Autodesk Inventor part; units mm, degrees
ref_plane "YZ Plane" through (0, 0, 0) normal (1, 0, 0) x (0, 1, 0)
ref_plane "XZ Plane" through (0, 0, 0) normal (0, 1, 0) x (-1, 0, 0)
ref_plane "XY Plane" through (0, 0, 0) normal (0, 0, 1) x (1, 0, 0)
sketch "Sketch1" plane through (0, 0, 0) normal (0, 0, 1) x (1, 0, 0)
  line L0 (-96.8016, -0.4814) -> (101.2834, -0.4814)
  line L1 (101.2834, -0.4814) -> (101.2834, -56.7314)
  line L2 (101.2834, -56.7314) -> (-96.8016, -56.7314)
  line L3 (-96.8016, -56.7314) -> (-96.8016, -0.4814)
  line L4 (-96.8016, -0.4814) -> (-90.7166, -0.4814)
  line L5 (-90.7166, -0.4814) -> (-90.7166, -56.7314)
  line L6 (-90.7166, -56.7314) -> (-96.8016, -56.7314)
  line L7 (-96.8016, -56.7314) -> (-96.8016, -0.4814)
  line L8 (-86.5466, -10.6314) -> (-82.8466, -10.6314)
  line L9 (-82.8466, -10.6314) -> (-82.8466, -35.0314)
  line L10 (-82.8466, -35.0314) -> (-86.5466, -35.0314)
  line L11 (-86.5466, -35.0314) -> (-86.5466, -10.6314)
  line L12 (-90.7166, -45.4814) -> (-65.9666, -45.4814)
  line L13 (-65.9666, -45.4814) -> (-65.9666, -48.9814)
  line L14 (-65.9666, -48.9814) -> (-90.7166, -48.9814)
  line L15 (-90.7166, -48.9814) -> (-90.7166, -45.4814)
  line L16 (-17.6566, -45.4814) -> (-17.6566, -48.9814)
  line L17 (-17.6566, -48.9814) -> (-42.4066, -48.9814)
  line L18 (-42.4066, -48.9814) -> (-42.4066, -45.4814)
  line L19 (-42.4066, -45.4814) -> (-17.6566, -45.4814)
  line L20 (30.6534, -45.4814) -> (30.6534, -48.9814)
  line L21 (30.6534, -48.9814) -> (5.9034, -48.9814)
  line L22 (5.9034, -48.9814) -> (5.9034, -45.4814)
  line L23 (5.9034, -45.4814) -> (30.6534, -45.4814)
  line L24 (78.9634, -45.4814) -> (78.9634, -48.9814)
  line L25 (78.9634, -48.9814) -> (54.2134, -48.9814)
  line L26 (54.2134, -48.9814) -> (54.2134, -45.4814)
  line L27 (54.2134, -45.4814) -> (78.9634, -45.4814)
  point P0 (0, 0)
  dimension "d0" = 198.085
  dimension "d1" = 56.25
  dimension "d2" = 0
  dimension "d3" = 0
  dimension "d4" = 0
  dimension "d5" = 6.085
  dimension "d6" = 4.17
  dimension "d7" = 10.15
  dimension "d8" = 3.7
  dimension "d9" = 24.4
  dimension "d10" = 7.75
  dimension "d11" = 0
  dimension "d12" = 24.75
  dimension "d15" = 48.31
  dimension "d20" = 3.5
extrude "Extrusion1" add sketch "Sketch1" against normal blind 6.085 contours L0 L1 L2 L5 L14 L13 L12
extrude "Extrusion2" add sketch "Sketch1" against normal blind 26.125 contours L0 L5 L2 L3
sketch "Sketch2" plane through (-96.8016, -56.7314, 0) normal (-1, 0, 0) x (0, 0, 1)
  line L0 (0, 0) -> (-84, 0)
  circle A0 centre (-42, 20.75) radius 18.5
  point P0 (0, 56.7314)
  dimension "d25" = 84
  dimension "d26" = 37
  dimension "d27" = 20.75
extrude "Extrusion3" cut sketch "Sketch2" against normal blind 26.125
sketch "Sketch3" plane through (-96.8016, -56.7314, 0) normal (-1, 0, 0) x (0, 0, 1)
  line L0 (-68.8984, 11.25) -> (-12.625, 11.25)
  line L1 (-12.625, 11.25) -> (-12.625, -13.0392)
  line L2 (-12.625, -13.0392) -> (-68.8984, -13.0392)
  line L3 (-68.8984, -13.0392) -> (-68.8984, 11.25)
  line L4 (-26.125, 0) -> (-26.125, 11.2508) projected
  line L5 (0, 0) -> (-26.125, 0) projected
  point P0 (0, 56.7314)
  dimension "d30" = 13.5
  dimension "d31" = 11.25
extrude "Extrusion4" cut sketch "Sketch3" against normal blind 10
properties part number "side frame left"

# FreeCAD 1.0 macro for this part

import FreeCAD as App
import Part
import Sketcher

V = App.Vector

doc = App.newDocument("Part")
body = doc.addObject("PartDesign::Body", "Body")

# Sketch on XY plane
sketch1 = body.newObject("Sketcher::SketchObject", "Sketch")
sketch1.AttachmentSupport = (doc.getObject("XY_Plane"), [""])
sketch1.MapMode = "FlatFace"
sketch1.addGeometry(Part.LineSegment(V(101.2834, -0.4814, 0), V(-90.7166, -0.4814, 0)), False)
sketch1.addGeometry(Part.LineSegment(V(-90.7166, -0.4814, 0), V(-90.7166, -45.4814, 0)), False)
sketch1.addGeometry(Part.LineSegment(V(-90.7166, -45.4814, 0), V(-65.9666, -45.4814, 0)), False)
sketch1.addGeometry(Part.LineSegment(V(-65.9666, -45.4814, 0), V(-65.9666, -48.9814, 0)), False)
sketch1.addGeometry(Part.LineSegment(V(-65.9666, -48.9814, 0), V(-90.7166, -48.9814, 0)), False)
sketch1.addGeometry(Part.LineSegment(V(-90.7166, -48.9814, 0), V(-90.7166, -56.7314, 0)), False)
sketch1.addGeometry(Part.LineSegment(V(-90.7166, -56.7314, 0), V(101.2834, -56.7314, 0)), False)
sketch1.addGeometry(Part.LineSegment(V(101.2834, -56.7314, 0), V(101.2834, -0.4814, 0)), False)
sketch1.addGeometry(Part.LineSegment(V(-42.4066, -45.4814, 0), V(-17.6566, -45.4814, 0)), False)
sketch1.addGeometry(Part.LineSegment(V(-17.6566, -45.4814, 0), V(-17.6566, -48.9814, 0)), False)
sketch1.addGeometry(Part.LineSegment(V(-17.6566, -48.9814, 0), V(-42.4066, -48.9814, 0)), False)
sketch1.addGeometry(Part.LineSegment(V(-42.4066, -48.9814, 0), V(-42.4066, -45.4814, 0)), False)
sketch1.addGeometry(Part.LineSegment(V(5.9034, -45.4814, 0), V(30.6534, -45.4814, 0)), False)
sketch1.addGeometry(Part.LineSegment(V(30.6534, -45.4814, 0), V(30.6534, -48.9814, 0)), False)
sketch1.addGeometry(Part.LineSegment(V(30.6534, -48.9814, 0), V(5.9034, -48.9814, 0)), False)
sketch1.addGeometry(Part.LineSegment(V(5.9034, -48.9814, 0), V(5.9034, -45.4814, 0)), False)
sketch1.addGeometry(Part.LineSegment(V(54.2134, -45.4814, 0), V(78.9634, -45.4814, 0)), False)
sketch1.addGeometry(Part.LineSegment(V(78.9634, -45.4814, 0), V(78.9634, -48.9814, 0)), False)
sketch1.addGeometry(Part.LineSegment(V(78.9634, -48.9814, 0), V(54.2134, -48.9814, 0)), False)
sketch1.addGeometry(Part.LineSegment(V(54.2134, -48.9814, 0), V(54.2134, -45.4814, 0)), False)
sketch1.addGeometry(Part.LineSegment(V(-86.5466, -35.0314, 0), V(-86.5466, -10.6314, 0)), False)
sketch1.addGeometry(Part.LineSegment(V(-86.5466, -10.6314, 0), V(-82.8466, -10.6314, 0)), False)
sketch1.addGeometry(Part.LineSegment(V(-82.8466, -10.6314, 0), V(-82.8466, -35.0314, 0)), False)
sketch1.addGeometry(Part.LineSegment(V(-82.8466, -35.0314, 0), V(-86.5466, -35.0314, 0)), False)
sketch1.addConstraint(Sketcher.Constraint("Coincident", 0, 2, 1, 1))
sketch1.addConstraint(Sketcher.Constraint("Coincident", 1, 2, 2, 1))
sketch1.addConstraint(Sketcher.Constraint("Coincident", 2, 2, 3, 1))
sketch1.addConstraint(Sketcher.Constraint("Coincident", 3, 2, 4, 1))
sketch1.addConstraint(Sketcher.Constraint("Coincident", 4, 2, 5, 1))
sketch1.addConstraint(Sketcher.Constraint("Coincident", 5, 2, 6, 1))
sketch1.addConstraint(Sketcher.Constraint("Coincident", 6, 2, 7, 1))
sketch1.addConstraint(Sketcher.Constraint("Coincident", 7, 2, 0, 1))
sketch1.addConstraint(Sketcher.Constraint("Coincident", 8, 2, 9, 1))
sketch1.addConstraint(Sketcher.Constraint("Coincident", 9, 2, 10, 1))
sketch1.addConstraint(Sketcher.Constraint("Coincident", 10, 2, 11, 1))
sketch1.addConstraint(Sketcher.Constraint("Coincident", 11, 2, 8, 1))
sketch1.addConstraint(Sketcher.Constraint("Coincident", 12, 2, 13, 1))
sketch1.addConstraint(Sketcher.Constraint("Coincident", 13, 2, 14, 1))
sketch1.addConstraint(Sketcher.Constraint("Coincident", 14, 2, 15, 1))
sketch1.addConstraint(Sketcher.Constraint("Coincident", 15, 2, 12, 1))
sketch1.addConstraint(Sketcher.Constraint("Coincident", 16, 2, 17, 1))
sketch1.addConstraint(Sketcher.Constraint("Coincident", 17, 2, 18, 1))
sketch1.addConstraint(Sketcher.Constraint("Coincident", 18, 2, 19, 1))
sketch1.addConstraint(Sketcher.Constraint("Coincident", 19, 2, 16, 1))
sketch1.addConstraint(Sketcher.Constraint("Coincident", 20, 2, 21, 1))
sketch1.addConstraint(Sketcher.Constraint("Coincident", 21, 2, 22, 1))
sketch1.addConstraint(Sketcher.Constraint("Coincident", 22, 2, 23, 1))
sketch1.addConstraint(Sketcher.Constraint("Coincident", 23, 2, 20, 1))
sketch1.addConstraint(Sketcher.Constraint("Horizontal", 0))
sketch1.addConstraint(Sketcher.Constraint("Vertical", 1))
sketch1.addConstraint(Sketcher.Constraint("Horizontal", 2))
sketch1.addConstraint(Sketcher.Constraint("Vertical", 3))
sketch1.addConstraint(Sketcher.Constraint("Horizontal", 4))
sketch1.addConstraint(Sketcher.Constraint("Vertical", 5))
sketch1.addConstraint(Sketcher.Constraint("Horizontal", 6))
sketch1.addConstraint(Sketcher.Constraint("Vertical", 7))
sketch1.addConstraint(Sketcher.Constraint("Horizontal", 8))
sketch1.addConstraint(Sketcher.Constraint("Vertical", 9))
sketch1.addConstraint(Sketcher.Constraint("Horizontal", 10))
sketch1.addConstraint(Sketcher.Constraint("Vertical", 11))
sketch1.addConstraint(Sketcher.Constraint("Horizontal", 12))
sketch1.addConstraint(Sketcher.Constraint("Vertical", 13))
sketch1.addConstraint(Sketcher.Constraint("Horizontal", 14))
sketch1.addConstraint(Sketcher.Constraint("Vertical", 15))
sketch1.addConstraint(Sketcher.Constraint("Horizontal", 16))
sketch1.addConstraint(Sketcher.Constraint("Vertical", 17))
sketch1.addConstraint(Sketcher.Constraint("Horizontal", 18))
sketch1.addConstraint(Sketcher.Constraint("Vertical", 19))
sketch1.addConstraint(Sketcher.Constraint("Vertical", 20))
sketch1.addConstraint(Sketcher.Constraint("Horizontal", 21))
sketch1.addConstraint(Sketcher.Constraint("Vertical", 22))
sketch1.addConstraint(Sketcher.Constraint("Horizontal", 23))
sketch1.addConstraint(Sketcher.Constraint("Horizontal", 2, 2, 8, 2))
sketch1.addConstraint(Sketcher.Constraint("Horizontal", 4, 2, 9, 2))
sketch1.addConstraint(Sketcher.Constraint("Horizontal", 11, 2, 12, 2))
sketch1.addConstraint(Sketcher.Constraint("Horizontal", 10, 2, 13, 2))
sketch1.addConstraint(Sketcher.Constraint("Horizontal", 15, 2, 16, 2))
sketch1.addConstraint(Sketcher.Constraint("Horizontal", 14, 2, 17, 2))
sketch1.addConstraint(Sketcher.Constraint("Vertical", 1, 2, 4, 2))
sketch1.addConstraint(Sketcher.Constraint("Equal", 4, 8))
sketch1.addConstraint(Sketcher.Constraint("Equal", 10, 12))
sketch1.addConstraint(Sketcher.Constraint("Equal", 14, 16))
sketch1.addConstraint(Sketcher.Constraint("DistanceX", 21, 1, 21, 2, 3.7))
sketch1.addConstraint(Sketcher.Constraint("DistanceY", 3, 2, 3, 1, 3.5))
sketch1.addConstraint(Sketcher.Constraint("DistanceY", 20, 1, 20, 2, 24.4))
sketch1.addConstraint(Sketcher.Constraint("DistanceX", 2, 1, 2, 2, 24.75))
sketch1.addConstraint(Sketcher.Constraint("DistanceY", 5, 2, 5, 1, 7.75))
sketch1.addConstraint(Sketcher.Constraint("DistanceY", 7, 1, 7, 2, 56.25))
sketch1.addConstraint(Sketcher.Constraint("DistanceX", 0, 2, 0, 1, 192.0))
sketch1.addConstraint(Sketcher.Constraint("DistanceX", 2, 2, 8, 2, 48.31))
sketch1.addConstraint(Sketcher.Constraint("DistanceX", 8, 2, 12, 2, 48.31))
sketch1.addConstraint(Sketcher.Constraint("DistanceX", 12, 2, 16, 2, 48.31))
sketch1.addConstraint(Sketcher.Constraint("DistanceX", 0, 2, 20, 2, 4.17))
sketch1.addConstraint(Sketcher.Constraint("DistanceY", 20, 2, 0, 2, 10.15))
sketch1.addConstraint(Sketcher.Constraint("DistanceX", 0, 2, -1, 1, 90.7166))
sketch1.addConstraint(Sketcher.Constraint("DistanceY", 0, 2, -1, 1, 0.4814))
pad1 = body.newObject("PartDesign::Pad", "Pad")
pad1.Profile = sketch1
pad1.Length = 6.085
pad1.Reversed = True

# Sketch on XY plane
sketch2 = body.newObject("Sketcher::SketchObject", "Sketch001")
sketch2.AttachmentSupport = (doc.getObject("XY_Plane"), [""])
sketch2.MapMode = "FlatFace"
sketch2.addGeometry(Part.LineSegment(V(-90.7166, -0.4814, 0), V(-96.8016, -0.4814, 0)), False)
sketch2.addGeometry(Part.LineSegment(V(-96.8016, -0.4814, 0), V(-96.8016, -56.7314, 0)), False)
sketch2.addGeometry(Part.LineSegment(V(-96.8016, -56.7314, 0), V(-90.7166, -56.7314, 0)), False)
sketch2.addGeometry(Part.LineSegment(V(-90.7166, -56.7314, 0), V(-90.7166, -0.4814, 0)), False)
sketch2.addConstraint(Sketcher.Constraint("Coincident", 0, 2, 1, 1))
sketch2.addConstraint(Sketcher.Constraint("Coincident", 1, 2, 2, 1))
sketch2.addConstraint(Sketcher.Constraint("Coincident", 2, 2, 3, 1))
sketch2.addConstraint(Sketcher.Constraint("Coincident", 3, 2, 0, 1))
sketch2.addConstraint(Sketcher.Constraint("Horizontal", 0))
sketch2.addConstraint(Sketcher.Constraint("Vertical", 1))
sketch2.addConstraint(Sketcher.Constraint("Horizontal", 2))
sketch2.addConstraint(Sketcher.Constraint("Vertical", 3))
sketch2.addConstraint(Sketcher.Constraint("DistanceY", 1, 2, 1, 1, 56.25))
sketch2.addConstraint(Sketcher.Constraint("DistanceX", 0, 2, 0, 1, 6.085))
sketch2.addConstraint(Sketcher.Constraint("DistanceX", 0, 2, -1, 1, 96.8016))
sketch2.addConstraint(Sketcher.Constraint("DistanceY", 0, 2, -1, 1, 0.4814))
pad2 = body.newObject("PartDesign::Pad", "Pad001")
pad2.Profile = sketch2
pad2.Length = 26.125
pad2.Reversed = True

# Sketch on YZ plane
sketch3 = body.newObject("Sketcher::SketchObject", "Sketch002")
sketch3.AttachmentSupport = (doc.getObject("YZ_Plane"), [""])
sketch3.MapMode = "FlatFace"
sketch3.AttachmentOffset = App.Placement(V(0, 0, -96.8016), App.Rotation())
sketch3.addGeometry(Part.Circle(V(-35.9814, -42, 0), V(0, 0, 1), 18.5), False)
sketch3.addConstraint(Sketcher.Constraint("Diameter", 0, 37.0))
sketch3.addConstraint(Sketcher.Constraint("DistanceY", 0, 3, -1, 1, 42.0))
sketch3.addConstraint(Sketcher.Constraint("DistanceX", 0, 3, -1, 1, 35.9814))
pocket1 = body.newObject("PartDesign::Pocket", "Pocket")
pocket1.Profile = sketch3
pocket1.Length = 26.125
pocket1.Reversed = True

# Sketch on YZ plane
sketch4 = body.newObject("Sketcher::SketchObject", "Sketch003")
sketch4.AttachmentSupport = (doc.getObject("YZ_Plane"), [""])
sketch4.MapMode = "FlatFace"
sketch4.AttachmentOffset = App.Placement(V(0, 0, -96.8016), App.Rotation())
sketch4.addGeometry(Part.LineSegment(V(-45.4814, -68.8984, 0), V(-69.7706, -68.8984, 0)), False)
sketch4.addGeometry(Part.LineSegment(V(-69.7706, -68.8984, 0), V(-69.7706, -12.625, 0)), False)
sketch4.addGeometry(Part.LineSegment(V(-69.7706, -12.625, 0), V(-45.4814, -12.625, 0)), False)
sketch4.addGeometry(Part.LineSegment(V(-45.4814, -12.625, 0), V(-45.4814, -68.8984, 0)), False)
sketch4.addConstraint(Sketcher.Constraint("Coincident", 0, 2, 1, 1))
sketch4.addConstraint(Sketcher.Constraint("Coincident", 1, 2, 2, 1))
sketch4.addConstraint(Sketcher.Constraint("Coincident", 2, 2, 3, 1))
sketch4.addConstraint(Sketcher.Constraint("Coincident", 3, 2, 0, 1))
sketch4.addConstraint(Sketcher.Constraint("Horizontal", 0))
sketch4.addConstraint(Sketcher.Constraint("Vertical", 1))
sketch4.addConstraint(Sketcher.Constraint("Horizontal", 2))
sketch4.addConstraint(Sketcher.Constraint("Vertical", 3))
sketch4.addConstraint(Sketcher.Constraint("DistanceX", 0, 2, 0, 1, 24.2892))
sketch4.addConstraint(Sketcher.Constraint("DistanceY", 1, 1, 1, 2, 56.2734))
sketch4.addConstraint(Sketcher.Constraint("DistanceY", 1, 2, -1, 1, 12.625))
sketch4.addConstraint(Sketcher.Constraint("DistanceX", 0, 2, -1, 1, 69.7706))
pocket2 = body.newObject("PartDesign::Pocket", "Pocket001")
pocket2.Profile = sketch4
pocket2.Length = 10
pocket2.Reversed = True

doc.recompute()
